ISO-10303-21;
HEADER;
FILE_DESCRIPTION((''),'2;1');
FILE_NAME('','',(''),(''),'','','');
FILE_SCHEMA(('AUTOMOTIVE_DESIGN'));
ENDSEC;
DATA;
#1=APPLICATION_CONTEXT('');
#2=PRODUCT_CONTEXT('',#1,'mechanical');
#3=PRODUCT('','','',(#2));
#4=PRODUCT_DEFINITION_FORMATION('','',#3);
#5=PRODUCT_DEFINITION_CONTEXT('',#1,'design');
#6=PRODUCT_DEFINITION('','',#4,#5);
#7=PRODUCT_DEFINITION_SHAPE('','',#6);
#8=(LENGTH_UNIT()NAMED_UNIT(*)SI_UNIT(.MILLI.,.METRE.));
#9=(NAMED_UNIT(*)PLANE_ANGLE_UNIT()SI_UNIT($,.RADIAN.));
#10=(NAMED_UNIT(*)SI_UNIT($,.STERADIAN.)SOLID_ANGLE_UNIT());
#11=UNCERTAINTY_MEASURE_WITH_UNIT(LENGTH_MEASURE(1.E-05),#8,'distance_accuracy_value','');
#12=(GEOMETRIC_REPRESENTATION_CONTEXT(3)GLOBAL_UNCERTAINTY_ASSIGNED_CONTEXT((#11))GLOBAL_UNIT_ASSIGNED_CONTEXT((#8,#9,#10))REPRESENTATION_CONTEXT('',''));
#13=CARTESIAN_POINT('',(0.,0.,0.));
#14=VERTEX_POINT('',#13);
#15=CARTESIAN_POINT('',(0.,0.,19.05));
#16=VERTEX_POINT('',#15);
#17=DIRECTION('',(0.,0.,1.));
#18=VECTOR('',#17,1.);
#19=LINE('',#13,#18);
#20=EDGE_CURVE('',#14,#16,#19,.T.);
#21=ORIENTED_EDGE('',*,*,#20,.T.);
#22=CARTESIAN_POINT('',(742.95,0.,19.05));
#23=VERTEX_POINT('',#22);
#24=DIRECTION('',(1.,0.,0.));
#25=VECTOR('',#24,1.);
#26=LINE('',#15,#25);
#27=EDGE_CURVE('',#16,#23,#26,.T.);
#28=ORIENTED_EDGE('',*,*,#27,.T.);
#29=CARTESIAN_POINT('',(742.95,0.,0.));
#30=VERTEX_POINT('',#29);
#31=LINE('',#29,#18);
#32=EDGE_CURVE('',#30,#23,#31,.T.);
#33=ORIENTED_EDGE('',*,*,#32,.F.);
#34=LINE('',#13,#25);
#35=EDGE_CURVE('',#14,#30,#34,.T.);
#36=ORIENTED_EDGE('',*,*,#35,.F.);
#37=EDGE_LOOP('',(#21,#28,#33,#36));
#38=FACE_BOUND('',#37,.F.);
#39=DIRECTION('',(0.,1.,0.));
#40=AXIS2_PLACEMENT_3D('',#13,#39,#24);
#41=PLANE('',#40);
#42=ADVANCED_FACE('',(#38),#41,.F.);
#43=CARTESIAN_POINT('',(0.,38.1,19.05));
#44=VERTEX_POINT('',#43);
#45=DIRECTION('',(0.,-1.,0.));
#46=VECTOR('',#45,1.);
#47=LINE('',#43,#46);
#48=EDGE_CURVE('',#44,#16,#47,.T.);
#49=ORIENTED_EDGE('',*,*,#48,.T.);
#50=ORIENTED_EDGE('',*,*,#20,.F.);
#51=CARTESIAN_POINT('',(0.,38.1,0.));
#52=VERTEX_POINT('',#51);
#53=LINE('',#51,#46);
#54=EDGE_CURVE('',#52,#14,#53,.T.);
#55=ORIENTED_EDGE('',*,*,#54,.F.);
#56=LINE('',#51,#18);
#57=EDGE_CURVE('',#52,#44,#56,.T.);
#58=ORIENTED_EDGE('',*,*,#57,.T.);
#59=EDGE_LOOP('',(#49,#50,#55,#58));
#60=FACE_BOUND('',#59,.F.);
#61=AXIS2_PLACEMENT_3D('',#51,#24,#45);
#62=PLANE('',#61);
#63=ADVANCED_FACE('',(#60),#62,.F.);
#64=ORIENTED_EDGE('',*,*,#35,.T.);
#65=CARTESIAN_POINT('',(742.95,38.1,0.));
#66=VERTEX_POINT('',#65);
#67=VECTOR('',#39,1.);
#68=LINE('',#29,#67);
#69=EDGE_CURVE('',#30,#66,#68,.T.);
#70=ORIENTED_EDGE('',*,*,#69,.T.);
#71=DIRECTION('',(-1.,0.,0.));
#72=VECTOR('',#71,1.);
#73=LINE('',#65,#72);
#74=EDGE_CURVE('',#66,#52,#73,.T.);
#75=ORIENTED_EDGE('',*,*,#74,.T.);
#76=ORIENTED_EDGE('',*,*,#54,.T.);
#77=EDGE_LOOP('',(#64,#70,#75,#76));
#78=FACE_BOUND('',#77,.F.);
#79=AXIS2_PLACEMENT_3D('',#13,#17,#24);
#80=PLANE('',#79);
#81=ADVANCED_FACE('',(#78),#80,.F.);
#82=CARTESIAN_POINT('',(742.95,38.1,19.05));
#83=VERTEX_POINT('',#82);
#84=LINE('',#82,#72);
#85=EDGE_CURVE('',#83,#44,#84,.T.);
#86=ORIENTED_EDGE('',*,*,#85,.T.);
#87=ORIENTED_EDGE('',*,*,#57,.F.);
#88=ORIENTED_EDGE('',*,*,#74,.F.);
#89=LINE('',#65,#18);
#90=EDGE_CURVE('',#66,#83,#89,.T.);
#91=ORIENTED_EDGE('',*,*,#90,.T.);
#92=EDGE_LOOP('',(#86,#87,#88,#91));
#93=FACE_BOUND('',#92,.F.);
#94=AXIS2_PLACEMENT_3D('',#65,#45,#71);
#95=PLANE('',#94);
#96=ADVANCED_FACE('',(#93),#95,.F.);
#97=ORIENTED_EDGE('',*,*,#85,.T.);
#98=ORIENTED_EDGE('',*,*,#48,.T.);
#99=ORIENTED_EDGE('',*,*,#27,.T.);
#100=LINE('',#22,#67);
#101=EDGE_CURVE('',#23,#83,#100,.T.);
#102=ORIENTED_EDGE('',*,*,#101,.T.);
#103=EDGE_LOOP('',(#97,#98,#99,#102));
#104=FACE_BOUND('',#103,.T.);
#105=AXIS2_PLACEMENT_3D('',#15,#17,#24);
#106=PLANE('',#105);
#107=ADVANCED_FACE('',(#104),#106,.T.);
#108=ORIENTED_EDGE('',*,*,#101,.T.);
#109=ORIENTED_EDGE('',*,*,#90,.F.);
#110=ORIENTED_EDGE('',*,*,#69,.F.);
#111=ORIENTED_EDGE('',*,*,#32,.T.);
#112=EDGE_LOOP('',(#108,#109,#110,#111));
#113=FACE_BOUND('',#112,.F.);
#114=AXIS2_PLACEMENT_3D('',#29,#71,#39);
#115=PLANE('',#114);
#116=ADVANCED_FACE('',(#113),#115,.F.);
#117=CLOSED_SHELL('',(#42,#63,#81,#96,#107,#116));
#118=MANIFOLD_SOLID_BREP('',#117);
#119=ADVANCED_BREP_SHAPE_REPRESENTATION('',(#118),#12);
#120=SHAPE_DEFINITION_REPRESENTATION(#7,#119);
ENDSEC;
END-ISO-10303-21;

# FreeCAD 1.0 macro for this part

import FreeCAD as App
import Part
import Sketcher
Q = App.Units.Quantity


def add_polygon(sketch, points):
    """Adds a closed chain of lines whose ends are joined by coincident constraints."""
    first, n = sketch.GeometryCount, len(points)
    for a, b in zip(points, points[1:] + points[:1]):
        sketch.addGeometry(Part.LineSegment(App.Vector(*a, 0), App.Vector(*b, 0)), False)
    for i in range(n):
        sketch.addConstraint(Sketcher.Constraint("Coincident", first + i, 2, first + (i + 1) % n, 1))

doc = App.newDocument("Part")
body = doc.addObject("PartDesign::Body", "Body")

# Sketch on XY plane
sketch1 = body.newObject("Sketcher::SketchObject", "Sketch")
sketch1.AttachmentSupport = (doc.getObject("XY_Plane"), [""])
sketch1.MapMode = "FlatFace"
add_polygon(sketch1, [(0, 38.1), (0, 0), (742.95, 0), (742.95, 38.1)])  # lines 0-3
sketch1.addConstraint([
    Sketcher.Constraint("Vertical", 0),
    Sketcher.Constraint("Horizontal", 1),
    Sketcher.Constraint("Vertical", 2),
    Sketcher.Constraint("Horizontal", 3),
    Sketcher.Constraint("Coincident", 0, 2, -1, 1),
    Sketcher.Constraint("DistanceY", 0, 2, 0, 1, Q("1.5 in")),
    Sketcher.Constraint("DistanceX", 1, 1, 1, 2, Q("29.25 in")),
])
pad1 = body.newObject("PartDesign::Pad", "Pad")
pad1.Profile = sketch1
pad1.Length = Q("0.75 in")

doc.recompute()
